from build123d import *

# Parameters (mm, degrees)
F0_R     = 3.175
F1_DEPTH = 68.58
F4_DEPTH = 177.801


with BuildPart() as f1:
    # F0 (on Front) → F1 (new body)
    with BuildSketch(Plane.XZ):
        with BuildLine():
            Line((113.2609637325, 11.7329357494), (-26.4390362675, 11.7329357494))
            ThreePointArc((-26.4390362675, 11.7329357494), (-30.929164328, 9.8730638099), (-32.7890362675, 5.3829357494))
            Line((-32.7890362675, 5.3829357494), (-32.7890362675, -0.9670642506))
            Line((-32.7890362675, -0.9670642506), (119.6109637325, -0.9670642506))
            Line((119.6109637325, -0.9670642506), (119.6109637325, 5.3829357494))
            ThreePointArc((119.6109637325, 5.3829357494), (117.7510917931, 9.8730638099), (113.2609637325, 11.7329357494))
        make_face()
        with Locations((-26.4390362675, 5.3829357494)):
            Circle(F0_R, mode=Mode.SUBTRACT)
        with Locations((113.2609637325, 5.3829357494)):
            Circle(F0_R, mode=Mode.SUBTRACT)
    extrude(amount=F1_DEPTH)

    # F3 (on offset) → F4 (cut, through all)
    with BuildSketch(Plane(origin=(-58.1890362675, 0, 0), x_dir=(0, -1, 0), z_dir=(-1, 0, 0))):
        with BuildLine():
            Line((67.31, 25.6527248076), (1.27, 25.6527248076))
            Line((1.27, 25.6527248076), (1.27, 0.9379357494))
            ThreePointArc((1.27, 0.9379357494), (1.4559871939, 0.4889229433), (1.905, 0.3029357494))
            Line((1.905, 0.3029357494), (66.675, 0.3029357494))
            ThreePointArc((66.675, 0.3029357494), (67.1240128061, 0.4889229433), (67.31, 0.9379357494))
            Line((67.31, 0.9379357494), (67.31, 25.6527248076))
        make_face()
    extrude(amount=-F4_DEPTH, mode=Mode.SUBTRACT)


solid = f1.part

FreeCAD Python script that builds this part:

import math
import FreeCAD as App
import Part
import Sketcher
from FreeCAD import Vector
Q = App.Units.Quantity

doc = App.newDocument("Part")
body = doc.addObject("PartDesign::Body", "Body")

sketch1 = body.newObject("Sketcher::SketchObject", "Sketch")
sketch1.AttachmentSupport = (doc.getObject("XZ_Plane"), [""])
sketch1.MapMode = "FlatFace"
sketch1.addGeometry([
    Part.LineSegment(Vector(113.3, 11.7, 0), Vector(-26.4, 11.7, 0)),
    Part.ArcOfCircle(Part.Circle(Vector(-26.4, 5.4, 0), Vector(0, 0, 1), 6.3), math.radians(90), math.radians(180)),
    Part.LineSegment(Vector(-32.8, 5.4, 0), Vector(-32.8, -1, 0)),
    Part.LineSegment(Vector(-32.8, -1, 0), Vector(119.6, -1, 0)),
    Part.LineSegment(Vector(119.6, -1, 0), Vector(119.6, 5.4, 0)),
    Part.ArcOfCircle(Part.Circle(Vector(113.3, 5.4, 0), Vector(0, 0, 1), 6.3), math.radians(0), math.radians(90)),
    Part.Circle(Vector(-26.4, 5.4, 0), Vector(0, 0, 1), 3.2),
    Part.Circle(Vector(113.3, 5.4, 0), Vector(0, 0, 1), 3.2),
], False)
sketch1.addConstraint([
    Sketcher.Constraint("Tangent", 0, 2, 1, 1),
    Sketcher.Constraint("Tangent", 1, 2, 2, 1),
    Sketcher.Constraint("Coincident", 2, 2, 3, 1),
    Sketcher.Constraint("Coincident", 3, 2, 4, 1),
    Sketcher.Constraint("Tangent", 4, 2, 5, 1),
    Sketcher.Constraint("Tangent", 5, 2, 0, 1),
    Sketcher.Constraint("Horizontal", 0),
    Sketcher.Constraint("Vertical", 2),
    Sketcher.Constraint("Horizontal", 3),
    Sketcher.Constraint("Vertical", 4),
    Sketcher.Constraint("Coincident", 6, 3, 1, 3),
    Sketcher.Constraint("Coincident", 7, 3, 5, 3),
    Sketcher.Constraint("Equal", 1, 5),
    Sketcher.Constraint("Equal", 6, 7),
    Sketcher.Constraint("Diameter", 6, Q("0.25 in")),
    Sketcher.Constraint("DistanceX", 3, 1, 3, 2, Q("6 in")),
    Sketcher.Constraint("Radius", 1, Q("0.25 in")),
    Sketcher.Constraint("DistanceY", 2, 2, 2, 1, Q("0.25 in")),
    Sketcher.Constraint("DistanceX", 1, 3, -1, 1, 26.439036),
    Sketcher.Constraint("DistanceY", -1, 1, 1, 3, 5.382936),
])
pad1 = body.newObject("PartDesign::Pad", "Pad")
pad1.Profile = sketch1
pad1.Length = Q("2.7 in")

sketch2 = body.newObject("Sketcher::SketchObject", "Sketch001")
sketch2.AttachmentSupport = (doc.getObject("YZ_Plane"), [""])
sketch2.MapMode = "FlatFace"
sketch2.AttachmentOffset = App.Placement(Vector(0, 0, -58.189036), App.Rotation())
sketch2.addGeometry([
    Part.LineSegment(Vector(-67.3, 25.7, 0), Vector(-1.3, 25.7, 0)),
    Part.LineSegment(Vector(-1.3, 25.7, 0), Vector(-1.3, 0.9, 0)),
    Part.ArcOfCircle(Part.Circle(Vector(-1.9, 0.9, 0), Vector(0, 0, 1), 0.6), math.radians(-90), math.radians(0)),
    Part.LineSegment(Vector(-1.9, 0.3, 0), Vector(-66.7, 0.3, 0)),
    Part.ArcOfCircle(Part.Circle(Vector(-66.7, 0.9, 0), Vector(0, 0, 1), 0.6), math.radians(180), math.radians(270)),
    Part.LineSegment(Vector(-67.3, 0.9, 0), Vector(-67.3, 25.7, 0)),
], False)
sketch2.addConstraint([
    Sketcher.Constraint("Coincident", 0, 2, 1, 1),
    Sketcher.Constraint("Tangent", 1, 2, 2, 2),
    Sketcher.Constraint("Tangent", 2, 1, 3, 1),
    Sketcher.Constraint("Tangent", 3, 2, 4, 2),
    Sketcher.Constraint("Tangent", 4, 1, 5, 1),
    Sketcher.Constraint("Coincident", 5, 2, 0, 1),
    Sketcher.Constraint("Horizontal", 0),
    Sketcher.Constraint("Vertical", 1),
    Sketcher.Constraint("Horizontal", 3),
    Sketcher.Constraint("Vertical", 5),
    Sketcher.Constraint("Equal", 2, 4),
    Sketcher.Constraint("DistanceX", 0, 1, 0, 2, Q("2.6 in")),
    Sketcher.Constraint("Radius", 2, Q("0.025 in")),
    Sketcher.Constraint("DistanceX", 0, 2, -1, 1, Q("0.05 in")),
    Sketcher.Constraint("DistanceY", 1, 2, 1, 1, 24.714789),
    Sketcher.Constraint("DistanceY", -1, 1, 2, 3, 0.937936),
])
pocket1 = body.newObject("PartDesign::Pocket", "Pocket")
pocket1.Profile = sketch2
pocket1.Type = "ThroughAll"
pocket1.Reversed = True

doc.recompute()
